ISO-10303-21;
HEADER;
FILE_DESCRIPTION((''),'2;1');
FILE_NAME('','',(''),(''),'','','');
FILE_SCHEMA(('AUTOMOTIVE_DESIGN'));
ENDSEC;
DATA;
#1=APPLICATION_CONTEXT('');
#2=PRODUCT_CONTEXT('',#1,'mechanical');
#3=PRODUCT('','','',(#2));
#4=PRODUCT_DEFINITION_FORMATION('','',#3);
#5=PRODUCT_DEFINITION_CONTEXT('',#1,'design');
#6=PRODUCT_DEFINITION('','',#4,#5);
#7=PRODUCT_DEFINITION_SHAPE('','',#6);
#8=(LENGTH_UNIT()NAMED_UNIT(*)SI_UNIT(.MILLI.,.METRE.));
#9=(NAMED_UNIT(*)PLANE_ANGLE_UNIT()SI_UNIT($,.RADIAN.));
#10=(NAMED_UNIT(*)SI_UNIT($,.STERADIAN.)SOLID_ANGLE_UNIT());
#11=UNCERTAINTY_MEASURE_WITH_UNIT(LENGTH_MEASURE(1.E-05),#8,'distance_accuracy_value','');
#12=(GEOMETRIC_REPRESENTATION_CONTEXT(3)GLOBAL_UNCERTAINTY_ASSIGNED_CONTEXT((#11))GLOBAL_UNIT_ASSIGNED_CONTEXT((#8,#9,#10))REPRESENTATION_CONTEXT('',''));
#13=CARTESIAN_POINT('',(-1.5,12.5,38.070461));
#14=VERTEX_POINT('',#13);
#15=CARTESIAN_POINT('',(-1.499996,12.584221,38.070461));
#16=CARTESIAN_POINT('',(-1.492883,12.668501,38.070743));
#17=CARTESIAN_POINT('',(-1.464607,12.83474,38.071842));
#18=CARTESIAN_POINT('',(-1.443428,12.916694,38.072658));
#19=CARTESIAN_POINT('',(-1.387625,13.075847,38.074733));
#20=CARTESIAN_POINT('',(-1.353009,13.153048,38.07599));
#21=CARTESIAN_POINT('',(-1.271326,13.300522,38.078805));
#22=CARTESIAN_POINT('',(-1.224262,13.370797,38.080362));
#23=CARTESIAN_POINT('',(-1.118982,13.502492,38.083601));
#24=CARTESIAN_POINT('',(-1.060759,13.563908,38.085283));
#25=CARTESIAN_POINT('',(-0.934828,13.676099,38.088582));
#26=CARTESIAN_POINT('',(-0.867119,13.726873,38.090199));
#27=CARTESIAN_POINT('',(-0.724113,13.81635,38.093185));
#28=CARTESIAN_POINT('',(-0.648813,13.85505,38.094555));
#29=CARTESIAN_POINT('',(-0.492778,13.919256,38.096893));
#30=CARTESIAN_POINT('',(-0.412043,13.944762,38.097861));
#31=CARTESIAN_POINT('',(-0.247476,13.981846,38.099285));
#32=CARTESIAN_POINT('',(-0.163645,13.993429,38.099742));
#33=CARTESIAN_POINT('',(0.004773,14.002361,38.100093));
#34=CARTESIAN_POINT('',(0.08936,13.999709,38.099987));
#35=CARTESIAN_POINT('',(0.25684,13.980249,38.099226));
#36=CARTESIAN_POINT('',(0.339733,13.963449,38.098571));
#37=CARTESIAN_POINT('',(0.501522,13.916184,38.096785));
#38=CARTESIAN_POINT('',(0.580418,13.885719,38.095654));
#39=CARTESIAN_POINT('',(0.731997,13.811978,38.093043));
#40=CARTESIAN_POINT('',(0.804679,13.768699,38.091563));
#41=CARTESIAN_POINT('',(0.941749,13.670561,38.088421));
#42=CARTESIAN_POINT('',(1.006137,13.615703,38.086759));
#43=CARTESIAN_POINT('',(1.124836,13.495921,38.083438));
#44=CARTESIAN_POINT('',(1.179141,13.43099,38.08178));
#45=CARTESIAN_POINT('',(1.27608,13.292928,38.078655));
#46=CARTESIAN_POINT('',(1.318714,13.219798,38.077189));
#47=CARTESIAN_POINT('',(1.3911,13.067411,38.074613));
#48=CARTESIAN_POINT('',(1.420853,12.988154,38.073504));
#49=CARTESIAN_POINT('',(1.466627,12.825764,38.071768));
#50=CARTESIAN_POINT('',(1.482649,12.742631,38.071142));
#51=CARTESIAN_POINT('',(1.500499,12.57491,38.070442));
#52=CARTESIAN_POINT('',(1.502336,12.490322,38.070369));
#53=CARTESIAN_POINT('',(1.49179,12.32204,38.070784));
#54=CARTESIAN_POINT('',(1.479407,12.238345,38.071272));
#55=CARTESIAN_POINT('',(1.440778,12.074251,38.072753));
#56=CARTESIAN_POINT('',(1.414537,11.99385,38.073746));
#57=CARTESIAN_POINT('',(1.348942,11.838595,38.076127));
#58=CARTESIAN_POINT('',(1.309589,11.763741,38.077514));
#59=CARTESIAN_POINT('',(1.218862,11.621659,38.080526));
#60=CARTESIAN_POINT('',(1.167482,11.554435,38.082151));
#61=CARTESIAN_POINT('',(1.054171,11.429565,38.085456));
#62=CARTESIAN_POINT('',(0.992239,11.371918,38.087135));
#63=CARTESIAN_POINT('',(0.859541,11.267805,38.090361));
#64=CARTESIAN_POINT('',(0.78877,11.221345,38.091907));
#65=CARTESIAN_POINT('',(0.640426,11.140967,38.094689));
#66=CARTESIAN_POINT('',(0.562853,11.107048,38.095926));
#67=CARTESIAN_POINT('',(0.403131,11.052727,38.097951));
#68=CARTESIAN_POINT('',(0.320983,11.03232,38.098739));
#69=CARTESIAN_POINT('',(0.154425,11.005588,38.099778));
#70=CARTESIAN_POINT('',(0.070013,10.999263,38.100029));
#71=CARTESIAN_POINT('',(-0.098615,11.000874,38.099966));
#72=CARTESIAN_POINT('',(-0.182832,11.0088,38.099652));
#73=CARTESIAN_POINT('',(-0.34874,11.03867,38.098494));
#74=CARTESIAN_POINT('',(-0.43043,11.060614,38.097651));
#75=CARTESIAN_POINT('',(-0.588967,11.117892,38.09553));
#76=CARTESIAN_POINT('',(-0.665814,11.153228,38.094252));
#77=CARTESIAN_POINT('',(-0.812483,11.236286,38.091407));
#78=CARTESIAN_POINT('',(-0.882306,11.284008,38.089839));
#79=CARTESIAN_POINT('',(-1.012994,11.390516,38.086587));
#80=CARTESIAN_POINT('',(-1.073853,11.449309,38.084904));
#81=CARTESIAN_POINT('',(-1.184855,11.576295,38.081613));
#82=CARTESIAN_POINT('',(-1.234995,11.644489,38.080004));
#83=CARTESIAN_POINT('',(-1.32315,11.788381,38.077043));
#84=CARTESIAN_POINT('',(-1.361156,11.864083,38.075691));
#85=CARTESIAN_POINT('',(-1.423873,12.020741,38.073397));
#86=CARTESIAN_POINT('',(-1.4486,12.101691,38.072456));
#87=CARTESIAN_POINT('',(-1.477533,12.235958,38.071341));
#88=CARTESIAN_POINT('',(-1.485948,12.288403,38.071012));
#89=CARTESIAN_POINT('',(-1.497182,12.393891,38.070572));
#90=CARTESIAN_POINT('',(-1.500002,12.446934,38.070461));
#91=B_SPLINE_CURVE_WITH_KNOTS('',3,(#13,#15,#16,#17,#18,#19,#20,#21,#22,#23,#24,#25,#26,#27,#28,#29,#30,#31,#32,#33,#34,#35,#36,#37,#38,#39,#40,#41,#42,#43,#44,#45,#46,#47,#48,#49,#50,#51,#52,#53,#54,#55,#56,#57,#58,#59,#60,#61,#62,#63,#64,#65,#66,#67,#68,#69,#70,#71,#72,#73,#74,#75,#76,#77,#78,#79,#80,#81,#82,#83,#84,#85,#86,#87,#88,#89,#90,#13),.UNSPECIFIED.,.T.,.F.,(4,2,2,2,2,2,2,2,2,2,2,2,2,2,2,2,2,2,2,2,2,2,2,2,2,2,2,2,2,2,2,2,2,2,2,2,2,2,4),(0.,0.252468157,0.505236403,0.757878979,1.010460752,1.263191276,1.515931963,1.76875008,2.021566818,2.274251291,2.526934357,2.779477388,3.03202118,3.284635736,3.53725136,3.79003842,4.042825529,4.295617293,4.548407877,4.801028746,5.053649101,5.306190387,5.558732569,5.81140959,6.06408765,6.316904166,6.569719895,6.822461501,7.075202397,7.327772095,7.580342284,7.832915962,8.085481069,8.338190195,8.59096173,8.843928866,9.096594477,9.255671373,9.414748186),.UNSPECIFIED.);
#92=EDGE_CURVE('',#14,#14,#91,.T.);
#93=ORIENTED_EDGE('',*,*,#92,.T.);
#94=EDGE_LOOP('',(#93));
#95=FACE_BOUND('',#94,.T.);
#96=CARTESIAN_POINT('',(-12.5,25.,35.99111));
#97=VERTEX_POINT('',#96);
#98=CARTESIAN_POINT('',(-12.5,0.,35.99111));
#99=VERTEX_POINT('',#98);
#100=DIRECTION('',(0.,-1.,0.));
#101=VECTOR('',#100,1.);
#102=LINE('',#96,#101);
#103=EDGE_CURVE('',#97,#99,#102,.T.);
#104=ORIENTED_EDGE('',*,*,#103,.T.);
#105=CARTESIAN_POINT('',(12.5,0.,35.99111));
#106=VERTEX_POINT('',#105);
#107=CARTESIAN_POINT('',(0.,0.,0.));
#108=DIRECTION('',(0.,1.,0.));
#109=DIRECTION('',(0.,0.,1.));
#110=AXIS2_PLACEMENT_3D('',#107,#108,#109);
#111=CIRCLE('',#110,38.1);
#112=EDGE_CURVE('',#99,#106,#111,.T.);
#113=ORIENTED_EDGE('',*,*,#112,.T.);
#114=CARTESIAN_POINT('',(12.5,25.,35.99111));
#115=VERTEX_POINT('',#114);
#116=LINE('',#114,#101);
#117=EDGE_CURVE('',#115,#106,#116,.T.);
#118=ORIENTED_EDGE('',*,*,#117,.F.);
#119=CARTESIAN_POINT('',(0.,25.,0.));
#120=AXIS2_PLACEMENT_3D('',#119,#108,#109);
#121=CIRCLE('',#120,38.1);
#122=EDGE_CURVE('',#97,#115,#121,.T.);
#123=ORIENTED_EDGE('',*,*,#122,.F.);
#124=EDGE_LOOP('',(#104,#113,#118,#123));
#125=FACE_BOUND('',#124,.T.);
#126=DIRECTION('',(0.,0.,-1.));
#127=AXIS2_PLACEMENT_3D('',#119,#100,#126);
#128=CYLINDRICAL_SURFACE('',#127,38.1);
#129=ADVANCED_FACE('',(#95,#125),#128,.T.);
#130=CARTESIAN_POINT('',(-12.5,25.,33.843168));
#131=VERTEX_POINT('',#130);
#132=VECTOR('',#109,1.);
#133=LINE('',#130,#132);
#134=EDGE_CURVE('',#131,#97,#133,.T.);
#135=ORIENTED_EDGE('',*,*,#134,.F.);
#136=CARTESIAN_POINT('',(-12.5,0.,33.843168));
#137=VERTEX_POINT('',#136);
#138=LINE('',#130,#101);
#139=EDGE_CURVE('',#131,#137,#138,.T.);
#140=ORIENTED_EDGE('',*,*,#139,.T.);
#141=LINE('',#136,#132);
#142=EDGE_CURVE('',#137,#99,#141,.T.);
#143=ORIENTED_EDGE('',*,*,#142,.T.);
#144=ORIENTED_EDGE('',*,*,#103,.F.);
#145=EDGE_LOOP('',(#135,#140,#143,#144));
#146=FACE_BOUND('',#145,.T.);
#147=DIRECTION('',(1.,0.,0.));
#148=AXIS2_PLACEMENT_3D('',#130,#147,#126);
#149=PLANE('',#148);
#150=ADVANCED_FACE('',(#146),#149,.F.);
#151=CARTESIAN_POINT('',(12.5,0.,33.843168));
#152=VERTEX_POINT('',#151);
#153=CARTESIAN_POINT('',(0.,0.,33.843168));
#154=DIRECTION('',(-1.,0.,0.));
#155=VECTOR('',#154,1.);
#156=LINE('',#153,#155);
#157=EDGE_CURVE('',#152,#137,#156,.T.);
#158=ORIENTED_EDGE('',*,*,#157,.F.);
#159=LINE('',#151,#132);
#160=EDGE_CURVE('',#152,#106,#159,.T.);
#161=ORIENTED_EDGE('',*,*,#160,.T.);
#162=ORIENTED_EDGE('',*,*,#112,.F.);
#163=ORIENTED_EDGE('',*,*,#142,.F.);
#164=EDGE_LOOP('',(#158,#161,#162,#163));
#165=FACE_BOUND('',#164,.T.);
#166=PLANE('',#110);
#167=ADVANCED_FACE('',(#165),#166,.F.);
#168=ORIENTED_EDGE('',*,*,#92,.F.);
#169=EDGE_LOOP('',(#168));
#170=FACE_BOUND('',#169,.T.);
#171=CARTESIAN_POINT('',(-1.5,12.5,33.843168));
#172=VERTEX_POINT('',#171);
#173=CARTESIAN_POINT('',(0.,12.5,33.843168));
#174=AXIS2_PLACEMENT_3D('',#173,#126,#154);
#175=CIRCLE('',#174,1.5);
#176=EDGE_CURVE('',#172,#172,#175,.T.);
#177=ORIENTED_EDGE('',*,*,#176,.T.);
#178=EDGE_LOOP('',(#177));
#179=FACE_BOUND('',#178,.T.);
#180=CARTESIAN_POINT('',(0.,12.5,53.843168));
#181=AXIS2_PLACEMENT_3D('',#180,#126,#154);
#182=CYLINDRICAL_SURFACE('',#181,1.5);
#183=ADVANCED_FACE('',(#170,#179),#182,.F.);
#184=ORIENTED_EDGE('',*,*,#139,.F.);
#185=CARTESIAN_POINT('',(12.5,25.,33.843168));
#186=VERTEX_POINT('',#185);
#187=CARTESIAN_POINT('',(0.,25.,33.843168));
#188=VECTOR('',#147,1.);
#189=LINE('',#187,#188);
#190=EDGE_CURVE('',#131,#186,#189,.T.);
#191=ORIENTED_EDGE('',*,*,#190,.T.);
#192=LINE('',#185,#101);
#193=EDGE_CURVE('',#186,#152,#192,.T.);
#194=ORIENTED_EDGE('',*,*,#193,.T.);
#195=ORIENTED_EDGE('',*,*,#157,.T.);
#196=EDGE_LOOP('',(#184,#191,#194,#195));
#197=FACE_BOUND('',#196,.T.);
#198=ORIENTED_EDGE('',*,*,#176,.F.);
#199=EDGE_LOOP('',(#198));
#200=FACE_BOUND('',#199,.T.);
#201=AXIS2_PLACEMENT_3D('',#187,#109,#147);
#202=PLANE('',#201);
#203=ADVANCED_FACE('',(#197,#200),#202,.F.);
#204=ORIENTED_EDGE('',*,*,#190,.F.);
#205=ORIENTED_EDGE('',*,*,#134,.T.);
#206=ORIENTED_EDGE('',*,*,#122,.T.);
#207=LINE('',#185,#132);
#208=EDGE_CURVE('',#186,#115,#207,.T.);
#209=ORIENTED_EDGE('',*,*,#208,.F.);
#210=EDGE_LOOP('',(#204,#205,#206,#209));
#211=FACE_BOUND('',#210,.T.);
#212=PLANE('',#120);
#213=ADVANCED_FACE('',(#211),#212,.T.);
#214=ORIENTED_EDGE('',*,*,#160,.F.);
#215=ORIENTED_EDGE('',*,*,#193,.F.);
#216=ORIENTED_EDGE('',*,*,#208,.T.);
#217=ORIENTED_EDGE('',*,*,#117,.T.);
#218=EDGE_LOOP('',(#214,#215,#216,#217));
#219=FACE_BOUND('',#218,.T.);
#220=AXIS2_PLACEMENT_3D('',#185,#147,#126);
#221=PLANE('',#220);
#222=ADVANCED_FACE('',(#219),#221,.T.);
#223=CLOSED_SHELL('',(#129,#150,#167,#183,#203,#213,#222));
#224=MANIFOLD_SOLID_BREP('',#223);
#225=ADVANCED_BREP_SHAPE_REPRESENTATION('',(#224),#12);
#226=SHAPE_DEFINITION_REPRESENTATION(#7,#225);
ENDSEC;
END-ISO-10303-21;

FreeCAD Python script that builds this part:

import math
import FreeCAD as App
import Part
import Sketcher
from FreeCAD import Vector
Q = App.Units.Quantity

doc = App.newDocument("Part")
body = doc.addObject("PartDesign::Body", "Body")

# Sketch on XZ plane
sketch1 = body.newObject("Sketcher::SketchObject", "Sketch")
sketch1.AttachmentSupport = (doc.getObject("XZ_Plane"), [""])
sketch1.MapMode = "FlatFace"
sketch1.addGeometry([
    Part.LineSegment(Vector(-12.5, 33.8, 0), Vector(-12.5, 36, 0)),
    Part.ArcOfCircle(Part.Circle(Vector(0, 0, 0), Vector(0, 0, 1), 38.1), math.radians(71), math.radians(109)),
    Part.LineSegment(Vector(12.5, 36, 0), Vector(12.5, 33.8, 0)),
    Part.LineSegment(Vector(12.5, 33.8, 0), Vector(-12.5, 33.8, 0)),
], False)
sketch1.addConstraint([
    Sketcher.Constraint("Coincident", 0, 2, 1, 2),
    Sketcher.Constraint("Coincident", 1, 1, 2, 1),
    Sketcher.Constraint("Coincident", 2, 2, 3, 1),
    Sketcher.Constraint("Coincident", 3, 2, 0, 1),
    Sketcher.Constraint("Vertical", 0),
    Sketcher.Constraint("Vertical", 2),
    Sketcher.Constraint("Horizontal", 3),
    Sketcher.Constraint("Coincident", 1, 3, -1, 1),
    Sketcher.Constraint("Horizontal", 0, 2, 1, 1),
    Sketcher.Constraint("Radius", 1, Q("38.1 mm")),
    Sketcher.Constraint("DistanceX", 3, 2, 3, 1, Q("25 mm")),
    Sketcher.Constraint("DistanceY", 0, 1, 0, 2, Q("2.147942 mm")),
])
pad1 = body.newObject("PartDesign::Pad", "Pad")
pad1.Profile = sketch1
pad1.Length = 25
pad1.Reversed = True

# Sketch on XY plane
sketch2 = body.newObject("Sketcher::SketchObject", "Sketch001")
sketch2.AttachmentSupport = (doc.getObject("XY_Plane"), [""])
sketch2.MapMode = "FlatFace"
sketch2.AttachmentOffset = App.Placement(Vector(0, 0, 33.843168), App.Rotation())
sketch2.addGeometry(Part.Circle(Vector(0, 12.5, 0), Vector(0, 0, 1), 1.5), False)
sketch2.addConstraint([
    Sketcher.Constraint("PointOnObject", 0, 3, -2),
    Sketcher.Constraint("Diameter", 0, Q("3 mm")),
    Sketcher.Constraint("DistanceY", -1, 1, 0, 3, Q("12.5 mm")),
])
pocket1 = body.newObject("PartDesign::Pocket", "Pocket")
pocket1.Profile = sketch2
pocket1.Length = 20
pocket1.Reversed = True

doc.recompute()
